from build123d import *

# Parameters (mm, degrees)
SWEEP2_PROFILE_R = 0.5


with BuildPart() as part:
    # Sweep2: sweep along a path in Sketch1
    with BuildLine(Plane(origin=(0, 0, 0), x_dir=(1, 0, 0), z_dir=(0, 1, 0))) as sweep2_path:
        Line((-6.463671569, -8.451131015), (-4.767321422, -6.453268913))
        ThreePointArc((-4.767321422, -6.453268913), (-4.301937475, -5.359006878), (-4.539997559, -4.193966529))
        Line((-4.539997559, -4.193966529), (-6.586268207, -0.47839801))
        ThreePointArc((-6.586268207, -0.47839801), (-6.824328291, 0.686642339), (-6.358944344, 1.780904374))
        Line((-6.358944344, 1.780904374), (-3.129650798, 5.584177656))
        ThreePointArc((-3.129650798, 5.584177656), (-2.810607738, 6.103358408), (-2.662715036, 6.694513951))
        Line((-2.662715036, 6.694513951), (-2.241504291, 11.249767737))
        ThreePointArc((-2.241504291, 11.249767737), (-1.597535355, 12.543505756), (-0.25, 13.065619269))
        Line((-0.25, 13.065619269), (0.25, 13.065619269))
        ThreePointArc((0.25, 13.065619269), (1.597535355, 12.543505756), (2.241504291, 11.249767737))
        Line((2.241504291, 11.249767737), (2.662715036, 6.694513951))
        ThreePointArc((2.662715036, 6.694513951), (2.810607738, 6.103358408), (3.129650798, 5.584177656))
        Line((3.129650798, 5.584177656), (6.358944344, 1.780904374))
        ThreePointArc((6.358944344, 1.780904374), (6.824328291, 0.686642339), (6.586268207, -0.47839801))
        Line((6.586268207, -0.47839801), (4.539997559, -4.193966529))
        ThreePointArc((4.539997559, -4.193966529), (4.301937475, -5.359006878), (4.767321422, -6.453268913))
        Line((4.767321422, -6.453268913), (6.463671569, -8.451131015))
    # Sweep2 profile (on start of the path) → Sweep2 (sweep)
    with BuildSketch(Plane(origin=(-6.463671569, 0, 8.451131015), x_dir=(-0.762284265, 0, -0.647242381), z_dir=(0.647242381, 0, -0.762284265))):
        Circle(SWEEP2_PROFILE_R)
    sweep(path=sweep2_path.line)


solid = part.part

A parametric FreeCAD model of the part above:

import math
import FreeCAD as App
import Part
import Sketcher

doc = App.newDocument("Part")
params = doc.addObject("Spreadsheet::Sheet", "Params")
for row, (alias, value) in enumerate([
    ("sketch1_diameter", "1 mm"),
    ("sketch2_radius", "2 mm"),
    ("sketch2_width", "0.5 mm"),
], start=1):
    params.set(f"A{row}", alias)
    params.set(f"B{row}", "=" + value)
    params.setAlias(f"B{row}", alias)

body = doc.addObject("PartDesign::Body", "Body")

# Sketch on an angled plane
sketch1 = body.newObject("Sketcher::SketchObject", "Sketch")
sketch1.Placement = App.Placement(App.Vector(-6.463672, 0, 8.451131), App.Rotation(App.Vector(-0.762284265, 0, -0.647242381), App.Vector(0, 1, 0), App.Vector(0.647242381, 0, -0.762284265), "ZXY"))
sketch1.addGeometry(Part.Circle(App.Vector(0, 0, 0), App.Vector(0, 0, 1), 0.5), False)
sketch1.addConstraint(Sketcher.Constraint("Coincident", 0, 3, -1, 1))
sketch1.addConstraint(Sketcher.Constraint("Diameter", 0, 1.0))
sketch1.setExpression("Constraints[1]", "Params.sketch1_diameter")

# Sketch on XZ plane
sketch2 = body.newObject("Sketcher::SketchObject", "Sketch001")
sketch2.AttachmentSupport = (doc.getObject("XZ_Plane"), [""])
sketch2.MapMode = "FlatFace"
sketch2.addGeometry(Part.LineSegment(App.Vector(-6.5, 8.5, 0), App.Vector(-4.8, 6.5, 0)), False)
sketch2.addGeometry(Part.ArcOfCircle(Part.Circle(App.Vector(-6.3, 5.2, 0), App.Vector(0, 0, 1), 2), math.radians(-29), math.radians(40)), False)
sketch2.addGeometry(Part.LineSegment(App.Vector(-4.5, 4.2, 0), App.Vector(-6.6, 0.5, 0)), False)
sketch2.addGeometry(Part.ArcOfCircle(Part.Circle(App.Vector(-4.8, -0.5, 0), App.Vector(0, 0, 1), 2), math.radians(151), math.radians(220)), False)
sketch2.addGeometry(Part.LineSegment(App.Vector(-6.4, -1.8, 0), App.Vector(-3.1, -5.6, 0)), False)
sketch2.addGeometry(Part.ArcOfCircle(Part.Circle(App.Vector(-4.7, -6.9, 0), App.Vector(0, 0, 1), 2), math.radians(5), math.radians(40)), False)
sketch2.addGeometry(Part.LineSegment(App.Vector(-2.7, -6.7, 0), App.Vector(-2.2, -11.2, 0)), False)
sketch2.addGeometry(Part.ArcOfCircle(Part.Circle(App.Vector(-0.3, -11.1, 0), App.Vector(0, 0, 1), 2), math.radians(-175), math.radians(-90)), False)
sketch2.addGeometry(Part.LineSegment(App.Vector(-0.2, -13.1, 0), App.Vector(0.2, -13.1, 0)), False)
sketch2.addGeometry(Part.ArcOfCircle(Part.Circle(App.Vector(0.3, -11.1, 0), App.Vector(0, 0, 1), 2), math.radians(-90), math.radians(-5)), False)
sketch2.addGeometry(Part.LineSegment(App.Vector(2.2, -11.2, 0), App.Vector(2.7, -6.7, 0)), False)
sketch2.addGeometry(Part.ArcOfCircle(Part.Circle(App.Vector(4.7, -6.9, 0), App.Vector(0, 0, 1), 2), math.radians(140), math.radians(175)), False)
sketch2.addGeometry(Part.LineSegment(App.Vector(3.1, -5.6, 0), App.Vector(6.4, -1.8, 0)), False)
sketch2.addGeometry(Part.ArcOfCircle(Part.Circle(App.Vector(4.8, -0.5, 0), App.Vector(0, 0, 1), 2), math.radians(-40), math.radians(29)), False)
sketch2.addGeometry(Part.LineSegment(App.Vector(6.6, 0.5, 0), App.Vector(4.5, 4.2, 0)), False)
sketch2.addGeometry(Part.ArcOfCircle(Part.Circle(App.Vector(6.3, 5.2, 0), App.Vector(0, 0, 1), 2), math.radians(140), math.radians(209)), False)
sketch2.addGeometry(Part.LineSegment(App.Vector(4.8, 6.5, 0), App.Vector(6.5, 8.5, 0)), False)
sketch2.addConstraint(Sketcher.Constraint("Tangent", 0, 2, 1, 2))
sketch2.addConstraint(Sketcher.Constraint("Tangent", 1, 1, 2, 1))
sketch2.addConstraint(Sketcher.Constraint("Tangent", 2, 2, 3, 1))
sketch2.addConstraint(Sketcher.Constraint("Tangent", 3, 2, 4, 1))
sketch2.addConstraint(Sketcher.Constraint("Tangent", 4, 2, 5, 2))
sketch2.addConstraint(Sketcher.Constraint("Tangent", 5, 1, 6, 1))
sketch2.addConstraint(Sketcher.Constraint("Tangent", 6, 2, 7, 1))
sketch2.addConstraint(Sketcher.Constraint("Tangent", 7, 2, 8, 1))
sketch2.addConstraint(Sketcher.Constraint("Tangent", 8, 2, 9, 1))
sketch2.addConstraint(Sketcher.Constraint("Tangent", 9, 2, 10, 1))
sketch2.addConstraint(Sketcher.Constraint("Tangent", 10, 2, 11, 2))
sketch2.addConstraint(Sketcher.Constraint("Tangent", 11, 1, 12, 1))
sketch2.addConstraint(Sketcher.Constraint("Tangent", 12, 2, 13, 1))
sketch2.addConstraint(Sketcher.Constraint("Tangent", 13, 2, 14, 1))
sketch2.addConstraint(Sketcher.Constraint("Tangent", 14, 2, 15, 2))
sketch2.addConstraint(Sketcher.Constraint("Tangent", 15, 1, 16, 1))
sketch2.addConstraint(Sketcher.Constraint("Horizontal", 8))
sketch2.addConstraint(Sketcher.Constraint("Equal", 1, 3))
sketch2.addConstraint(Sketcher.Constraint("Equal", 3, 5))
sketch2.addConstraint(Sketcher.Constraint("Equal", 5, 7))
sketch2.addConstraint(Sketcher.Constraint("Equal", 7, 9))
sketch2.addConstraint(Sketcher.Constraint("Equal", 9, 11))
sketch2.addConstraint(Sketcher.Constraint("Equal", 11, 13))
sketch2.addConstraint(Sketcher.Constraint("Equal", 13, 15))
sketch2.addConstraint(Sketcher.Constraint("Symmetric", 5, 3, 11, 3, -2))
sketch2.addConstraint(Sketcher.Constraint("Symmetric", 3, 3, 13, 3, -2))
sketch2.addConstraint(Sketcher.Constraint("Symmetric", 1, 3, 15, 3, -2))
sketch2.addConstraint(Sketcher.Constraint("Symmetric", 0, 1, 16, 2, -2))
sketch2.addConstraint(Sketcher.Constraint("Parallel", 0, 4))
sketch2.addConstraint(Sketcher.Constraint("Horizontal", 6, 2, 9, 2))
sketch2.addConstraint(Sketcher.Constraint("Radius", 1, 2.0))
sketch2.addConstraint(Sketcher.Constraint("DistanceX", 8, 1, 8, 2, 0.5))
sketch2.addConstraint(Sketcher.Constraint("DistanceY", -1, 1, 2, 2, 0.478398))
sketch2.addConstraint(Sketcher.Constraint("DistanceY", 7, 3, 3, 3, 10.5792))
sketch2.addConstraint(Sketcher.Constraint("Distance", 0, 2.620889))
sketch2.addConstraint(Sketcher.Constraint("Distance", 4, 4.989311))
sketch2.addConstraint(Sketcher.Constraint("DistanceX", 1, 3, -1, 1, 6.29189))
sketch2.addConstraint(Sketcher.Constraint("DistanceY", 3, 3, -1, 1, 0.48642))
sketch2.addConstraint(Sketcher.Constraint("DistanceX", 5, 3, -1, 1, 4.654219))
sketch2.addConstraint(Sketcher.Constraint("DistanceX", 0, 1, -1, 1, 6.463672))
sketch2.setExpression("Constraints[30]", "Params.sketch2_radius")
sketch2.setExpression("Constraints[31]", "Params.sketch2_width")
doc.recompute()

additivepipe = body.newObject("PartDesign::AdditivePipe", "AdditivePipe")
additivepipe.Profile = sketch1
additivepipe.Spine = (sketch2, ["Edge1", "Edge2", "Edge3", "Edge4", "Edge5", "Edge6", "Edge7", "Edge8", "Edge9", "Edge10", "Edge11", "Edge12", "Edge13", "Edge14", "Edge15", "Edge16", "Edge17"])

doc.recompute()
